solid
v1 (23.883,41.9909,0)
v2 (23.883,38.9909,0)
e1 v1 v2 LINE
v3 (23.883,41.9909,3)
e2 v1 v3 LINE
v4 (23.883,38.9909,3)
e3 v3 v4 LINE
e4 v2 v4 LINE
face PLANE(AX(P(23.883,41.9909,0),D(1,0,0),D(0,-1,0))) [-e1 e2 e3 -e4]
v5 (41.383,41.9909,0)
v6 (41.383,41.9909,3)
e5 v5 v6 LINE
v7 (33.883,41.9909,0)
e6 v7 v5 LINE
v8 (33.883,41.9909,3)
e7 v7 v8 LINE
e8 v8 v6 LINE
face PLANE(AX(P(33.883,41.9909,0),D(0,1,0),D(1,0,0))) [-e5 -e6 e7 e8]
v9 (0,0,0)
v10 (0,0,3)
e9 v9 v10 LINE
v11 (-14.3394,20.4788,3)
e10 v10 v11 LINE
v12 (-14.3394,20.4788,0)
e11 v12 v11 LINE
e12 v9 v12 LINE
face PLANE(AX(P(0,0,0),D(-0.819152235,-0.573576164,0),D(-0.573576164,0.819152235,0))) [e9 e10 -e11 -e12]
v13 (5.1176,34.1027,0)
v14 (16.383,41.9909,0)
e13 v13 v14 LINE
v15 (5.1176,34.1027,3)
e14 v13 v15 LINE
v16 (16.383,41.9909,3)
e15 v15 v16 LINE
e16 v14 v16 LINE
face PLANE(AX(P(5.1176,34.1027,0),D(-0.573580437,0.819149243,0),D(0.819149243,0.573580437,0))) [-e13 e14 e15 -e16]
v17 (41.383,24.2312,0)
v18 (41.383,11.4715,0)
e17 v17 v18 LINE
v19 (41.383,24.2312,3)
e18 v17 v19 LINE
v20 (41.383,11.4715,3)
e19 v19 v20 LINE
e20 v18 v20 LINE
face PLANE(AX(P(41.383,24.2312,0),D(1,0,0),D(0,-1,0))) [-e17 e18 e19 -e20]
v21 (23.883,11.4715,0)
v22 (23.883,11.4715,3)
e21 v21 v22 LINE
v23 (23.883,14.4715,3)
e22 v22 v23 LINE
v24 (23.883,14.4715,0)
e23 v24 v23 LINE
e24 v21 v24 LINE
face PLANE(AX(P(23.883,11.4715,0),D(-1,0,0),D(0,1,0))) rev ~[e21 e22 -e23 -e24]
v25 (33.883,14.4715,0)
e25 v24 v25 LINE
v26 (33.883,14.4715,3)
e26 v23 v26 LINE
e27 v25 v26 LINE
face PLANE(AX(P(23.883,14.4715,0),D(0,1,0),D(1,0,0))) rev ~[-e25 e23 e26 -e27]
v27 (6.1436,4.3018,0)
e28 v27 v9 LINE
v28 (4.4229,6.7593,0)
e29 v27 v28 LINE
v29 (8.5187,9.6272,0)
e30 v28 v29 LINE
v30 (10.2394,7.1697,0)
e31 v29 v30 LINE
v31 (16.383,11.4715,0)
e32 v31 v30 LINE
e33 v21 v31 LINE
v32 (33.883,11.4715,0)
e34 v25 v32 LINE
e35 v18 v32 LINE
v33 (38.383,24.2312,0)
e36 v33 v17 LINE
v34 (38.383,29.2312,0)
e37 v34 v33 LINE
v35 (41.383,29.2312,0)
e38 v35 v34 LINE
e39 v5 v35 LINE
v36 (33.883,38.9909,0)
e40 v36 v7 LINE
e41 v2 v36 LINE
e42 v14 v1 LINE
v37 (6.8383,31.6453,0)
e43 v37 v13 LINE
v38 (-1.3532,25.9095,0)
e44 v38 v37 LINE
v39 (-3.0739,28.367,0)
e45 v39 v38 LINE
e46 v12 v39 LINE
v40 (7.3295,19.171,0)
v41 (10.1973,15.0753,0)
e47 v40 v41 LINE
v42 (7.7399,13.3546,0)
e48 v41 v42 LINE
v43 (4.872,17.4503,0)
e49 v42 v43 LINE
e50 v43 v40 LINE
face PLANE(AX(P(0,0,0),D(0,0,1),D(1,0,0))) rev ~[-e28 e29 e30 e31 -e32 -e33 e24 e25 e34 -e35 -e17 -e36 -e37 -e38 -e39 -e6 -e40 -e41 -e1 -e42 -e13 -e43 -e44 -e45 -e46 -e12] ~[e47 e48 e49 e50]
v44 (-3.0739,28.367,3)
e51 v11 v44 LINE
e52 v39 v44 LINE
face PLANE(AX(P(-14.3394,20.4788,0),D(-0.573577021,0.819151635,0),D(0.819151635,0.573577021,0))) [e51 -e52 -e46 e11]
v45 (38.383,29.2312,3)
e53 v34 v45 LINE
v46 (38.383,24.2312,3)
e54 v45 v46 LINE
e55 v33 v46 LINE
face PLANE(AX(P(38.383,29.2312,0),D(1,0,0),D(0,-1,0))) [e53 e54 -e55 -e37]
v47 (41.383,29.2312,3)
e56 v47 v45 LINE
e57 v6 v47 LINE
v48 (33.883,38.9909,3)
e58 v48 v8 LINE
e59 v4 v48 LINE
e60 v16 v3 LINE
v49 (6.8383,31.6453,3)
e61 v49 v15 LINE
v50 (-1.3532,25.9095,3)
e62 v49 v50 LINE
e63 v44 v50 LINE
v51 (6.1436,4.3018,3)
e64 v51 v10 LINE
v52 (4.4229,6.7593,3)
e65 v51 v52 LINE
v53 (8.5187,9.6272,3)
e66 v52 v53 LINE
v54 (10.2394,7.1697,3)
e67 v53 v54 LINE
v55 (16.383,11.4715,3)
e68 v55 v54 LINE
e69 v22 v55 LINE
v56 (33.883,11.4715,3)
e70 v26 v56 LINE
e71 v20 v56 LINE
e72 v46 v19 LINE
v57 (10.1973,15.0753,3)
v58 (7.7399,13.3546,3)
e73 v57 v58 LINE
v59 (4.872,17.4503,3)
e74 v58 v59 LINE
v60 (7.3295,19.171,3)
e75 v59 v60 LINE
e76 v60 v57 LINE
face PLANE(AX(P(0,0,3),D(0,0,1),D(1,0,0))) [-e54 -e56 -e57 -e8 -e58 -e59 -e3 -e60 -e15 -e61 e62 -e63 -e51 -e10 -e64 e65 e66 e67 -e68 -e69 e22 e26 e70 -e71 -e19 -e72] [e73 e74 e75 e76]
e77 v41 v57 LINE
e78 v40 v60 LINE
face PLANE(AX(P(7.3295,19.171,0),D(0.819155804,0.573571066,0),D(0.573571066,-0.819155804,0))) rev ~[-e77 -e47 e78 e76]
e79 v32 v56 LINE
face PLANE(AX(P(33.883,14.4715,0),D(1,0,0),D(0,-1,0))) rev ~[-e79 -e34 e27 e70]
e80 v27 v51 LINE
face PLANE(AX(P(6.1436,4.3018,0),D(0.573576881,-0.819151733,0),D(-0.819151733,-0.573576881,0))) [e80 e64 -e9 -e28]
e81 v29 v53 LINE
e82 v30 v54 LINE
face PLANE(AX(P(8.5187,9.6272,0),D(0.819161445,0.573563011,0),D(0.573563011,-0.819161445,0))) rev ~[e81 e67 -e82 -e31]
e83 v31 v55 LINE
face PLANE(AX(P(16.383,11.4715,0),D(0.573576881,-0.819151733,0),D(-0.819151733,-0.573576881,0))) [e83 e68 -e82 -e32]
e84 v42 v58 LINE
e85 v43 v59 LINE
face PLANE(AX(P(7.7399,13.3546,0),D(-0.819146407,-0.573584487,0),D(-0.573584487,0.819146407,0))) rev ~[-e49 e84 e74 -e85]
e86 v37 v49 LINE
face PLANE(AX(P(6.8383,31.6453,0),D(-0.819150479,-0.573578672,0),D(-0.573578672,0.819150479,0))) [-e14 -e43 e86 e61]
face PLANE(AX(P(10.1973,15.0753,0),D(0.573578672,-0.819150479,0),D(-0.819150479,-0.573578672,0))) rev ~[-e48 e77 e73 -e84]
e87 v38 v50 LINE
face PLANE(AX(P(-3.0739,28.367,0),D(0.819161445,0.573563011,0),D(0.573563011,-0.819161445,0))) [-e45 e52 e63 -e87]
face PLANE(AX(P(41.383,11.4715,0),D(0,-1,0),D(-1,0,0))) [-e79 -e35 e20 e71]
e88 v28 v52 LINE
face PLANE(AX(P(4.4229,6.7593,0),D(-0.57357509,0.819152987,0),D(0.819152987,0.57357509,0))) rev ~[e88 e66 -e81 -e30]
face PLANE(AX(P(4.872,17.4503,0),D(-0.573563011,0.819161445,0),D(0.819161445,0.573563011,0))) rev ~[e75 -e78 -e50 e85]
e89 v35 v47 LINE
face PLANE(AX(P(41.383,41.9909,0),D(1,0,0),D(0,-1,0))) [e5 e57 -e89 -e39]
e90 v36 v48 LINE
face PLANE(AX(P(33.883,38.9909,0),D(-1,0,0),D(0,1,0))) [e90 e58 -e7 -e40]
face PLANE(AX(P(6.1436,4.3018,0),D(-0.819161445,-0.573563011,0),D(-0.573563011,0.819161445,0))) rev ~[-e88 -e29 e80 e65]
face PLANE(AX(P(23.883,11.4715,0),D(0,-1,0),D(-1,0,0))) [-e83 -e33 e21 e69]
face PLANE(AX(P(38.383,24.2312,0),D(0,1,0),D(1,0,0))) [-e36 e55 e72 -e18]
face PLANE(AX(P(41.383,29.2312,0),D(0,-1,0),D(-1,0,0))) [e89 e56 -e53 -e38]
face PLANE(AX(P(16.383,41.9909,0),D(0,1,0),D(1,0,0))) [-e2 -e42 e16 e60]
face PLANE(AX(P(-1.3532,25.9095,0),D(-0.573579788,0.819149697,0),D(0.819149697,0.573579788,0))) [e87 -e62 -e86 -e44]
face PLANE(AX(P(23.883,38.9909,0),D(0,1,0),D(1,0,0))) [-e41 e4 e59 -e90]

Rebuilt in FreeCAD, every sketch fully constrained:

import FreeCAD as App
import Part
import Sketcher

V = App.Vector
Q = App.Units.Quantity


def add_polygon(sketch, points):
    """Adds a closed chain of lines whose ends are joined by coincident constraints."""
    first, n = sketch.GeometryCount, len(points)
    for a, b in zip(points, points[1:] + points[:1]):
        sketch.addGeometry(Part.LineSegment(App.Vector(*a, 0), App.Vector(*b, 0)), False)
    for i in range(n):
        sketch.addConstraint(Sketcher.Constraint("Coincident", first + i, 2, first + (i + 1) % n, 1))

doc = App.newDocument("Part")
body = doc.addObject("PartDesign::Body", "Body")

# Sketch on XY plane
sketch1 = body.newObject("Sketcher::SketchObject", "Sketch")
sketch1.AttachmentSupport = (doc.getObject("XY_Plane"), [""])
sketch1.MapMode = "FlatFace"
add_polygon(sketch1, [(-14.3394, 20.4788), (0, 0), (6.1436, 4.3018), (4.4229, 6.7593), (8.5187, 9.6272), (10.2394, 7.1697), (16.383, 11.4715), (23.883, 11.4715), (23.883, 14.4715), (33.883, 14.4715), (33.883, 11.4715), (41.383, 11.4715), (41.383, 24.2312), (38.383, 24.2312), (38.383, 29.2312), (41.383, 29.2312), (41.383, 41.9909), (33.883, 41.9909), (33.883, 38.9909), (23.883, 38.9909), (23.883, 41.9909), (16.383, 41.9909), (5.1176, 34.1027), (6.8383, 31.6453), (-1.3532, 25.9095), (-3.0739, 28.367)])  # lines 0-25
add_polygon(sketch1, [(4.872, 17.4503), (7.3295, 19.171), (10.1973, 15.0753), (7.7399, 13.3546)])  # lines 26-29
sketch1.addConstraint([
    Sketcher.Constraint("Horizontal", 6),
    Sketcher.Constraint("Vertical", 7),
    Sketcher.Constraint("Horizontal", 8),
    Sketcher.Constraint("Vertical", 9),
    Sketcher.Constraint("Horizontal", 10),
    Sketcher.Constraint("Vertical", 11),
    Sketcher.Constraint("Horizontal", 12),
    Sketcher.Constraint("Vertical", 13),
    Sketcher.Constraint("Horizontal", 14),
    Sketcher.Constraint("Vertical", 15),
    Sketcher.Constraint("Horizontal", 16),
    Sketcher.Constraint("Vertical", 17),
    Sketcher.Constraint("Horizontal", 18),
    Sketcher.Constraint("Vertical", 19),
    Sketcher.Constraint("Horizontal", 20),
    Sketcher.Constraint("Coincident", 0, 2, -1, 1),
    Sketcher.Constraint("Perpendicular", 0, 1),
    Sketcher.Constraint("Perpendicular", 1, 2),
    Sketcher.Constraint("Perpendicular", 2, 3),
    Sketcher.Constraint("Perpendicular", 3, 4),
    Sketcher.Constraint("Perpendicular", 4, 5),
    Sketcher.Constraint("Parallel", 5, 21),
    Sketcher.Constraint("Perpendicular", 21, 22),
    Sketcher.Constraint("Perpendicular", 22, 23),
    Sketcher.Constraint("Perpendicular", 23, 24),
    Sketcher.Constraint("Perpendicular", 24, 25),
    Sketcher.Constraint("Parallel", 25, 26),
    Sketcher.Constraint("Perpendicular", 26, 27),
    Sketcher.Constraint("Perpendicular", 27, 28),
    Sketcher.Constraint("Perpendicular", 28, 29),
    Sketcher.Constraint("Horizontal", 6, 2, 9, 2),
    Sketcher.Constraint("Horizontal", 16, 2, 19, 2),
    Sketcher.Constraint("Vertical", 11, 2, 14, 2),
    Sketcher.Constraint("Vertical", 9, 2, 16, 2),
    Sketcher.Constraint("Vertical", 7, 2, 18, 2),
    Sketcher.Constraint("Vertical", 5, 2, 20, 2),
    Sketcher.Constraint("Equal", 6, 10),
    Sketcher.Constraint("Equal", 14, 7),
    Sketcher.Constraint("Equal", 11, 15),
    Sketcher.Constraint("Equal", 9, 17),
    Sketcher.Constraint("Equal", 2, 4),
    Sketcher.Constraint("Equal", 1, 5),
    Sketcher.Constraint("Equal", 4, 22),
    Sketcher.Constraint("Equal", 22, 24),
    Sketcher.Constraint("Equal", 21, 25),
    Sketcher.Constraint("Equal", 24, 26),
    Sketcher.Constraint("Equal", 3, 27),
    Sketcher.Constraint("DistanceX", 8, 1, 8, 2, 10.0),
    Sketcher.Constraint("DistanceX", 12, 2, 12, 1, 3.0),
    Sketcher.Constraint("DistanceY", 13, 1, 13, 2, 5.0),
    Sketcher.Constraint("Angle", 29, Q("125.0006 deg")),
    Sketcher.Constraint("Distance", 0, 25.0),
    Sketcher.Constraint("Distance", 2, 3.0),
    Sketcher.Constraint("Distance", 3, 5.0),
    Sketcher.Constraint("Distance", 23, 10.0),
    Sketcher.Constraint("DistanceX", 5, 2, 10, 2, 25.0),
    Sketcher.Constraint("Distance", 1, 7.5),
    Sketcher.Constraint("DistanceX", -1, 1, 28, 2, 7.74),
    Sketcher.Constraint("DistanceY", -1, 1, 26, 2, 19.171),
])
pad1 = body.newObject("PartDesign::Pad", "Pad")
pad1.Profile = sketch1
pad1.Length = 3

doc.recompute()
